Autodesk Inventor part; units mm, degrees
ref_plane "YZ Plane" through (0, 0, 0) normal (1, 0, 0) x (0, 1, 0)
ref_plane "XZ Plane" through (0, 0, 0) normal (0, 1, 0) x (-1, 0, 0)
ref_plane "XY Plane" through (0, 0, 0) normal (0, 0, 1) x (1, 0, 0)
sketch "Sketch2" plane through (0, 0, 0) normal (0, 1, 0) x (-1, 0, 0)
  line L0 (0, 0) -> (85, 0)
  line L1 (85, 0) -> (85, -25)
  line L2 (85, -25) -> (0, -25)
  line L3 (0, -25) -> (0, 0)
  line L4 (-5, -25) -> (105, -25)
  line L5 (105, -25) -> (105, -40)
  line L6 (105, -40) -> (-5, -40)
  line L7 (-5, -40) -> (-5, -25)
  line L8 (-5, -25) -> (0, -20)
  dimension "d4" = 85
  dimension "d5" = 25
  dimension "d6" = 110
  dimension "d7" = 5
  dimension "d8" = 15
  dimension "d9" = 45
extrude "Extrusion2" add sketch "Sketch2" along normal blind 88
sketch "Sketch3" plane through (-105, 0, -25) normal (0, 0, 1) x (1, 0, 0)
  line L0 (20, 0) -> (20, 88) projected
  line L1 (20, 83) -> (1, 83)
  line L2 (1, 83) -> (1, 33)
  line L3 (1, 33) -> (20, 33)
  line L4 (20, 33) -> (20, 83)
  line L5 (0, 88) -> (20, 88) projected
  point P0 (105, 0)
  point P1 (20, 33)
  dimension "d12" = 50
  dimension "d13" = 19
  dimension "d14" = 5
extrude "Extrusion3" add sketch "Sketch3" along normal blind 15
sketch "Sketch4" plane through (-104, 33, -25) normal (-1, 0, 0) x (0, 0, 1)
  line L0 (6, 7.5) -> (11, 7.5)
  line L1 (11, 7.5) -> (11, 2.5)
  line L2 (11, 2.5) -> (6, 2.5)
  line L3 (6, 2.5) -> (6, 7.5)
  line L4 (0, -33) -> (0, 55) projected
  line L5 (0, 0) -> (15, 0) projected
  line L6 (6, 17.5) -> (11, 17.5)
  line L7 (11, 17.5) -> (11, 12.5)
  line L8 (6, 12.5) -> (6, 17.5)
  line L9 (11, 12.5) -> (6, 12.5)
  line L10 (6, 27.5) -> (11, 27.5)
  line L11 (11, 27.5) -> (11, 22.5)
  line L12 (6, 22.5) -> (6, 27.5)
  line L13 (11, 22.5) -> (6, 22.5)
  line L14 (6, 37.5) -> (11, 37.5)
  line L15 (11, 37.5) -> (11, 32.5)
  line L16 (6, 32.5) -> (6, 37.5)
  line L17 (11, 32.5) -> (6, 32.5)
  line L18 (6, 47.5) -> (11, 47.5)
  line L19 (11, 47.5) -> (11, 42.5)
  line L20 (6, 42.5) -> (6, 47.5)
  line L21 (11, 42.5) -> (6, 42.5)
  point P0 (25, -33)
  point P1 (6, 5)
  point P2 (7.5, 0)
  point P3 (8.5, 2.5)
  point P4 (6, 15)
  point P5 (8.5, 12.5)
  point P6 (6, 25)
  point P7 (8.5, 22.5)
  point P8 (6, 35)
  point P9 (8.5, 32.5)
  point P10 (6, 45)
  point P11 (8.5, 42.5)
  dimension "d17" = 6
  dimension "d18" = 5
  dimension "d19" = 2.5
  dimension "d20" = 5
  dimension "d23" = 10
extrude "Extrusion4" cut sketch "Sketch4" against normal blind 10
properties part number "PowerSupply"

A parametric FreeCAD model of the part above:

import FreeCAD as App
import Part
import Sketcher
from FreeCAD import Vector
Q = App.Units.Quantity


def add_polygon(sketch, points):
    """Adds a closed chain of lines whose ends are joined by coincident constraints."""
    first, n = sketch.GeometryCount, len(points)
    for a, b in zip(points, points[1:] + points[:1]):
        sketch.addGeometry(Part.LineSegment(App.Vector(*a, 0), App.Vector(*b, 0)), False)
    for i in range(n):
        sketch.addConstraint(Sketcher.Constraint("Coincident", first + i, 2, first + (i + 1) % n, 1))

doc = App.newDocument("Part")
params = doc.addObject("Spreadsheet::Sheet", "Params")
for row, (alias, value) in enumerate([
    ("sketch1_width", "85 mm"),
    ("sketch1_width2", "110 mm"),
    ("sketch1_height", "15 mm"),
    ("sketch1_height2", "25 mm"),
    ("pad1_length", "88 mm"),
    ("sketch2_width", "19 mm"),
    ("sketch2_height", "50 mm"),
    ("pad2_length", "15 mm"),
    ("sketch3_width", "5 mm"),
    ("pocket1_length", "10 mm"),
], start=1):
    params.set(f"A{row}", alias)
    params.set(f"B{row}", "=" + value)
    params.setAlias(f"B{row}", alias)

body = doc.addObject("PartDesign::Body", "Body")

# Sketch on XZ plane
sketch1 = doc.addObject("Sketcher::SketchObject", "Sketch")
body.addObject(sketch1)
sketch1.AttachmentSupport = (doc.XZ_Plane, [""])
sketch1.MapMode = "FlatFace"
add_polygon(sketch1, [(-85, 0), (0, 0), (0, -20), (5, -25), (5, -40), (-105, -40), (-105, -25), (-85, -25)])  # lines 0-7
sketch1.addConstraint(Sketcher.Constraint("Horizontal", 0))
sketch1.addConstraint(Sketcher.Constraint("Vertical", 1))
sketch1.addConstraint(Sketcher.Constraint("Vertical", 3))
sketch1.addConstraint(Sketcher.Constraint("Horizontal", 4))
sketch1.addConstraint(Sketcher.Constraint("Vertical", 5))
sketch1.addConstraint(Sketcher.Constraint("Horizontal", 6))
sketch1.addConstraint(Sketcher.Constraint("Vertical", 7))
sketch1.addConstraint(Sketcher.Constraint("Coincident", 0, 2, -1, 1))
sketch1.addConstraint(Sketcher.Constraint("Horizontal", 2, 2, 5, 2))
sketch1.addConstraint(Sketcher.Constraint("Equal", 6, 1))
sketch1.addConstraint(Sketcher.Constraint("DistanceX", 0, 1, 0, 2, Q("85 mm")))
sketch1.addConstraint(Sketcher.Constraint("DistanceX", 4, 2, 4, 1, Q("110 mm")))
sketch1.addConstraint(Sketcher.Constraint("DistanceY", 3, 2, 3, 1, Q("15 mm")))
sketch1.addConstraint(Sketcher.Constraint("DistanceY", 7, 1, 7, 2, Q("25 mm")))
sketch1.addConstraint(Sketcher.Constraint("DistanceX", -1, 1, 2, 2, Q("5 mm")))
sketch1.setExpression("Constraints[18]", "Params.sketch1_width")
sketch1.setExpression("Constraints[19]", "Params.sketch1_width2")
sketch1.setExpression("Constraints[20]", "Params.sketch1_height")
sketch1.setExpression("Constraints[21]", "Params.sketch1_height2")
pad1 = doc.addObject("PartDesign::Pad", "Pad")
body.addObject(pad1)
pad1.Profile = sketch1
pad1.setExpression("Length", "Params.pad1_length")
pad1.Reversed = True

# Sketch on XY plane
sketch2 = doc.addObject("Sketcher::SketchObject", "Sketch001")
body.addObject(sketch2)
sketch2.AttachmentSupport = (doc.XY_Plane, [""])
sketch2.MapMode = "FlatFace"
sketch2.AttachmentOffset = App.Placement(Vector(0, 0, -25), App.Rotation())
add_polygon(sketch2, [(-104, 33), (-85, 33), (-85, 83), (-104, 83)])  # lines 0-3
sketch2.addConstraint(Sketcher.Constraint("Horizontal", 0))
sketch2.addConstraint(Sketcher.Constraint("Vertical", 1))
sketch2.addConstraint(Sketcher.Constraint("Horizontal", 2))
sketch2.addConstraint(Sketcher.Constraint("Vertical", 3))
sketch2.addConstraint(Sketcher.Constraint("DistanceX", 0, 1, 0, 2, Q("19 mm")))
sketch2.addConstraint(Sketcher.Constraint("DistanceY", 1, 1, 1, 2, Q("50 mm")))
sketch2.addConstraint(Sketcher.Constraint("DistanceX", 0, 2, -1, 1, Q("85 mm")))
sketch2.addConstraint(Sketcher.Constraint("DistanceY", -1, 1, 0, 2, Q("33 mm")))
sketch2.setExpression("Constraints[8]", "Params.sketch2_width")
sketch2.setExpression("Constraints[9]", "Params.sketch2_height")
pad2 = doc.addObject("PartDesign::Pad", "Pad001")
body.addObject(pad2)
pad2.Profile = sketch2
pad2.setExpression("Length", "Params.pad2_length")

# Sketch on YZ plane
sketch3 = doc.addObject("Sketcher::SketchObject", "Sketch002")
body.addObject(sketch3)
sketch3.AttachmentSupport = (doc.YZ_Plane, [""])
sketch3.MapMode = "FlatFace"
sketch3.AttachmentOffset = App.Placement(Vector(0, 0, -104), App.Rotation())
add_polygon(sketch3, [(40.5, -14), (40.5, -19), (35.5, -19), (35.5, -14)])  # lines 0-3
add_polygon(sketch3, [(50.5, -14), (50.5, -19), (45.5, -19), (45.5, -14)])  # lines 4-7
add_polygon(sketch3, [(60.5, -14), (60.5, -19), (55.5, -19), (55.5, -14)])  # lines 8-11
add_polygon(sketch3, [(70.5, -14), (70.5, -19), (65.5, -19), (65.5, -14)])  # lines 12-15
add_polygon(sketch3, [(80.5, -14), (80.5, -19), (75.5, -19), (75.5, -14)])  # lines 16-19
sketch3.addConstraint(Sketcher.Constraint("Vertical", 0))
sketch3.addConstraint(Sketcher.Constraint("Horizontal", 1))
sketch3.addConstraint(Sketcher.Constraint("Vertical", 2))
sketch3.addConstraint(Sketcher.Constraint("Horizontal", 3))
sketch3.addConstraint(Sketcher.Constraint("Vertical", 4))
sketch3.addConstraint(Sketcher.Constraint("Horizontal", 5))
sketch3.addConstraint(Sketcher.Constraint("Vertical", 6))
sketch3.addConstraint(Sketcher.Constraint("Horizontal", 7))
sketch3.addConstraint(Sketcher.Constraint("Vertical", 8))
sketch3.addConstraint(Sketcher.Constraint("Horizontal", 9))
sketch3.addConstraint(Sketcher.Constraint("Vertical", 10))
sketch3.addConstraint(Sketcher.Constraint("Horizontal", 11))
sketch3.addConstraint(Sketcher.Constraint("Vertical", 12))
sketch3.addConstraint(Sketcher.Constraint("Horizontal", 13))
sketch3.addConstraint(Sketcher.Constraint("Vertical", 14))
sketch3.addConstraint(Sketcher.Constraint("Horizontal", 15))
sketch3.addConstraint(Sketcher.Constraint("Vertical", 16))
sketch3.addConstraint(Sketcher.Constraint("Horizontal", 17))
sketch3.addConstraint(Sketcher.Constraint("Vertical", 18))
sketch3.addConstraint(Sketcher.Constraint("Horizontal", 19))
sketch3.addConstraint(Sketcher.Constraint("Horizontal", 1, 2, 4, 2))
sketch3.addConstraint(Sketcher.Constraint("Horizontal", 3, 2, 6, 2))
sketch3.addConstraint(Sketcher.Constraint("Horizontal", 5, 2, 8, 2))
sketch3.addConstraint(Sketcher.Constraint("Horizontal", 7, 2, 10, 2))
sketch3.addConstraint(Sketcher.Constraint("Horizontal", 9, 2, 12, 2))
sketch3.addConstraint(Sketcher.Constraint("Horizontal", 11, 2, 14, 2))
sketch3.addConstraint(Sketcher.Constraint("Horizontal", 13, 2, 16, 2))
sketch3.addConstraint(Sketcher.Constraint("Horizontal", 15, 2, 18, 2))
sketch3.addConstraint(Sketcher.Constraint("Equal", 3, 5))
sketch3.addConstraint(Sketcher.Constraint("Equal", 7, 9))
sketch3.addConstraint(Sketcher.Constraint("Equal", 11, 13))
sketch3.addConstraint(Sketcher.Constraint("Equal", 15, 17))
sketch3.addConstraint(Sketcher.Constraint("Equal", 19, 0))
sketch3.addConstraint(Sketcher.Constraint("DistanceX", 1, 2, 1, 1, Q("5 mm")))
sketch3.addConstraint(Sketcher.Constraint("DistanceX", 0, 2, 4, 2, Q("10 mm")))
sketch3.addConstraint(Sketcher.Constraint("DistanceX", 4, 2, 8, 2, Q("10 mm")))
sketch3.addConstraint(Sketcher.Constraint("DistanceX", 8, 2, 12, 2, Q("10 mm")))
sketch3.addConstraint(Sketcher.Constraint("DistanceX", 12, 2, 16, 2, Q("10 mm")))
sketch3.addConstraint(Sketcher.Constraint("DistanceY", 0, 2, -1, 1, Q("19 mm")))
sketch3.addConstraint(Sketcher.Constraint("DistanceX", -1, 1, 0, 2, Q("40.5 mm")))
sketch3.setExpression("Constraints[53]", "Params.sketch3_width")
pocket1 = doc.addObject("PartDesign::Pocket", "Pocket")
body.addObject(pocket1)
pocket1.Profile = sketch3
pocket1.setExpression("Length", "Params.pocket1_length")
pocket1.Reversed = True

doc.recompute()
